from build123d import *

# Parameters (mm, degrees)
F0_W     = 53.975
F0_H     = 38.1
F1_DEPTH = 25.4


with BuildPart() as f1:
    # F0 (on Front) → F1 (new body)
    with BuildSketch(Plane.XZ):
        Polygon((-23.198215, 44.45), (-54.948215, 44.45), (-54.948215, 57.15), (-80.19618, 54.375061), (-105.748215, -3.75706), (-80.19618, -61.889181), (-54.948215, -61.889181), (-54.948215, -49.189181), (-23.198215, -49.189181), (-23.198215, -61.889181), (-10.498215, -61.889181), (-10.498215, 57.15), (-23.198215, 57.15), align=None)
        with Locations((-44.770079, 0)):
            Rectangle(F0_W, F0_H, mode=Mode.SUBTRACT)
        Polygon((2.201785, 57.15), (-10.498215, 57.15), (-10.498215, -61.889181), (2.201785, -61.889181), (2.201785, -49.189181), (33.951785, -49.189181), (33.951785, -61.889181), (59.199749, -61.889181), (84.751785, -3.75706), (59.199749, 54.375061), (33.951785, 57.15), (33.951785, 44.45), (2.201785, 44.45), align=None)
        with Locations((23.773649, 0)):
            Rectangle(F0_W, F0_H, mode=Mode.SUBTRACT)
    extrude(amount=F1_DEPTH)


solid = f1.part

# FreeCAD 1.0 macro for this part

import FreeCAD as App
import Part
import Sketcher
from FreeCAD import Vector
Q = App.Units.Quantity


def add_polygon(sketch, points):
    """Adds a closed chain of lines whose ends are joined by coincident constraints."""
    first, n = sketch.GeometryCount, len(points)
    for a, b in zip(points, points[1:] + points[:1]):
        sketch.addGeometry(Part.LineSegment(App.Vector(*a, 0), App.Vector(*b, 0)), False)
    for i in range(n):
        sketch.addConstraint(Sketcher.Constraint("Coincident", first + i, 2, first + (i + 1) % n, 1))

doc = App.newDocument("Part")
body = doc.addObject("PartDesign::Body", "Body")

sketch1 = doc.addObject("Sketcher::SketchObject", "Sketch")
body.addObject(sketch1)
sketch1.AttachmentSupport = (doc.XZ_Plane, [""])
sketch1.MapMode = "FlatFace"
add_polygon(sketch1, [(-23, 44), (-55, 44), (-55, 57), (-80, 54), (-106, -4), (-80, -62), (-55, -62), (-55, -49), (-23, -49), (-23, -62), (2, -62), (2, -49), (34, -49), (34, -62), (59, -62), (85, -4), (59, 54), (34, 57), (34, 44), (2, 44), (2, 57), (-23, 57)])
add_polygon(sketch1, [(-18, -19), (-72, -19), (-72, 19), (-18, 19)])
add_polygon(sketch1, [(51, -19), (-3, -19), (-3, 19), (51, 19)])
sketch1.addConstraint([
    Sketcher.Constraint("Horizontal", 0),
    Sketcher.Constraint("Vertical", 1),
    Sketcher.Constraint("Horizontal", 5),
    Sketcher.Constraint("Vertical", 6),
    Sketcher.Constraint("Horizontal", 7),
    Sketcher.Constraint("Vertical", 8),
    Sketcher.Constraint("Horizontal", 9),
    Sketcher.Constraint("Vertical", 10),
    Sketcher.Constraint("Horizontal", 11),
    Sketcher.Constraint("Vertical", 12),
    Sketcher.Constraint("Horizontal", 13),
    Sketcher.Constraint("Vertical", 17),
    Sketcher.Constraint("Horizontal", 18),
    Sketcher.Constraint("Vertical", 19),
    Sketcher.Constraint("Horizontal", 20),
    Sketcher.Constraint("Vertical", 21),
    Sketcher.Constraint("Horizontal", 22),
    Sketcher.Constraint("Vertical", 23),
    Sketcher.Constraint("Horizontal", 24),
    Sketcher.Constraint("Vertical", 25),
    Sketcher.Constraint("Horizontal", 26),
    Sketcher.Constraint("Vertical", 27),
    Sketcher.Constraint("Horizontal", 28),
    Sketcher.Constraint("Vertical", 29),
    Sketcher.Constraint("Parallel", 3, 14),
    Sketcher.Constraint("Parallel", 4, 15),
    Sketcher.Constraint("Horizontal", 5, 2, 8, 2),
    Sketcher.Constraint("Horizontal", 7, 2, 10, 2),
    Sketcher.Constraint("Horizontal", 9, 2, 12, 2),
    Sketcher.Constraint("Horizontal", 3, 2, 14, 2),
    Sketcher.Constraint("Horizontal", 2, 2, 15, 2),
    Sketcher.Constraint("Horizontal", 1, 2, 16, 2),
    Sketcher.Constraint("Horizontal", 0, 2, 17, 2),
    Sketcher.Constraint("Horizontal", 16, 2, 19, 2),
    Sketcher.Constraint("Horizontal", 25, 2, 26, 2),
    Sketcher.Constraint("Horizontal", 24, 2, 27, 2),
    Sketcher.Constraint("Vertical", 2, 2, 4, 2),
    Sketcher.Constraint("Vertical", 1, 2, 5, 2),
    Sketcher.Constraint("Vertical", 13, 2, 15, 2),
    Sketcher.Constraint("Vertical", 12, 2, 16, 2),
    Sketcher.Constraint("Vertical", 10, 2, 18, 2),
    Sketcher.Constraint("Vertical", 8, 2, 20, 2),
    Sketcher.Constraint("Equal", 7, 11),
    Sketcher.Constraint("Equal", 5, 13),
    Sketcher.Constraint("Equal", 24, 26),
    Sketcher.Constraint("Equal", 1, 6),
    Sketcher.Constraint("DistanceX", 9, 1, 9, 2, Q("1 in")),
    Sketcher.Constraint("Distance", 2, Q("1 in")),
    Sketcher.Constraint("DistanceY", 1, 1, 1, 2, Q("0.5 in")),
    Sketcher.Constraint("DistanceY", 23, 1, 23, 2, Q("1.5 in")),
    Sketcher.Constraint("DistanceX", 3, 2, 0, 2, Q("2 in")),
    Sketcher.Constraint("DistanceY", 23, 2, 0, 2, Q("1 in")),
    Sketcher.Constraint("Distance", 3, Q("2.5 in")),
    Sketcher.Constraint("DistanceX", 0, 2, 0, 1, Q("1.25 in")),
    Sketcher.Constraint("DistanceX", 22, 2, 22, 1, Q("2.125 in")),
    Sketcher.Constraint("DistanceY", -1, 1, 0, 2, Q("1.75 in")),
    Sketcher.Constraint("DistanceX", 4, 2, 22, 2, Q("8.438601 mm")),
    Sketcher.Constraint("DistanceX", 28, 2, 15, 2, Q("8.4386 mm")),
    Sketcher.Constraint("DistanceX", 5, 1, 5, 2, Q("25.247965 mm")),
    Sketcher.Constraint("DistanceX", 2, 2, -1, 1, Q("80.19618 mm")),
])
pad1 = doc.addObject("PartDesign::Pad", "Pad")
body.addObject(pad1)
pad1.Profile = sketch1
pad1.Length = Q("1 in")

doc.recompute()
